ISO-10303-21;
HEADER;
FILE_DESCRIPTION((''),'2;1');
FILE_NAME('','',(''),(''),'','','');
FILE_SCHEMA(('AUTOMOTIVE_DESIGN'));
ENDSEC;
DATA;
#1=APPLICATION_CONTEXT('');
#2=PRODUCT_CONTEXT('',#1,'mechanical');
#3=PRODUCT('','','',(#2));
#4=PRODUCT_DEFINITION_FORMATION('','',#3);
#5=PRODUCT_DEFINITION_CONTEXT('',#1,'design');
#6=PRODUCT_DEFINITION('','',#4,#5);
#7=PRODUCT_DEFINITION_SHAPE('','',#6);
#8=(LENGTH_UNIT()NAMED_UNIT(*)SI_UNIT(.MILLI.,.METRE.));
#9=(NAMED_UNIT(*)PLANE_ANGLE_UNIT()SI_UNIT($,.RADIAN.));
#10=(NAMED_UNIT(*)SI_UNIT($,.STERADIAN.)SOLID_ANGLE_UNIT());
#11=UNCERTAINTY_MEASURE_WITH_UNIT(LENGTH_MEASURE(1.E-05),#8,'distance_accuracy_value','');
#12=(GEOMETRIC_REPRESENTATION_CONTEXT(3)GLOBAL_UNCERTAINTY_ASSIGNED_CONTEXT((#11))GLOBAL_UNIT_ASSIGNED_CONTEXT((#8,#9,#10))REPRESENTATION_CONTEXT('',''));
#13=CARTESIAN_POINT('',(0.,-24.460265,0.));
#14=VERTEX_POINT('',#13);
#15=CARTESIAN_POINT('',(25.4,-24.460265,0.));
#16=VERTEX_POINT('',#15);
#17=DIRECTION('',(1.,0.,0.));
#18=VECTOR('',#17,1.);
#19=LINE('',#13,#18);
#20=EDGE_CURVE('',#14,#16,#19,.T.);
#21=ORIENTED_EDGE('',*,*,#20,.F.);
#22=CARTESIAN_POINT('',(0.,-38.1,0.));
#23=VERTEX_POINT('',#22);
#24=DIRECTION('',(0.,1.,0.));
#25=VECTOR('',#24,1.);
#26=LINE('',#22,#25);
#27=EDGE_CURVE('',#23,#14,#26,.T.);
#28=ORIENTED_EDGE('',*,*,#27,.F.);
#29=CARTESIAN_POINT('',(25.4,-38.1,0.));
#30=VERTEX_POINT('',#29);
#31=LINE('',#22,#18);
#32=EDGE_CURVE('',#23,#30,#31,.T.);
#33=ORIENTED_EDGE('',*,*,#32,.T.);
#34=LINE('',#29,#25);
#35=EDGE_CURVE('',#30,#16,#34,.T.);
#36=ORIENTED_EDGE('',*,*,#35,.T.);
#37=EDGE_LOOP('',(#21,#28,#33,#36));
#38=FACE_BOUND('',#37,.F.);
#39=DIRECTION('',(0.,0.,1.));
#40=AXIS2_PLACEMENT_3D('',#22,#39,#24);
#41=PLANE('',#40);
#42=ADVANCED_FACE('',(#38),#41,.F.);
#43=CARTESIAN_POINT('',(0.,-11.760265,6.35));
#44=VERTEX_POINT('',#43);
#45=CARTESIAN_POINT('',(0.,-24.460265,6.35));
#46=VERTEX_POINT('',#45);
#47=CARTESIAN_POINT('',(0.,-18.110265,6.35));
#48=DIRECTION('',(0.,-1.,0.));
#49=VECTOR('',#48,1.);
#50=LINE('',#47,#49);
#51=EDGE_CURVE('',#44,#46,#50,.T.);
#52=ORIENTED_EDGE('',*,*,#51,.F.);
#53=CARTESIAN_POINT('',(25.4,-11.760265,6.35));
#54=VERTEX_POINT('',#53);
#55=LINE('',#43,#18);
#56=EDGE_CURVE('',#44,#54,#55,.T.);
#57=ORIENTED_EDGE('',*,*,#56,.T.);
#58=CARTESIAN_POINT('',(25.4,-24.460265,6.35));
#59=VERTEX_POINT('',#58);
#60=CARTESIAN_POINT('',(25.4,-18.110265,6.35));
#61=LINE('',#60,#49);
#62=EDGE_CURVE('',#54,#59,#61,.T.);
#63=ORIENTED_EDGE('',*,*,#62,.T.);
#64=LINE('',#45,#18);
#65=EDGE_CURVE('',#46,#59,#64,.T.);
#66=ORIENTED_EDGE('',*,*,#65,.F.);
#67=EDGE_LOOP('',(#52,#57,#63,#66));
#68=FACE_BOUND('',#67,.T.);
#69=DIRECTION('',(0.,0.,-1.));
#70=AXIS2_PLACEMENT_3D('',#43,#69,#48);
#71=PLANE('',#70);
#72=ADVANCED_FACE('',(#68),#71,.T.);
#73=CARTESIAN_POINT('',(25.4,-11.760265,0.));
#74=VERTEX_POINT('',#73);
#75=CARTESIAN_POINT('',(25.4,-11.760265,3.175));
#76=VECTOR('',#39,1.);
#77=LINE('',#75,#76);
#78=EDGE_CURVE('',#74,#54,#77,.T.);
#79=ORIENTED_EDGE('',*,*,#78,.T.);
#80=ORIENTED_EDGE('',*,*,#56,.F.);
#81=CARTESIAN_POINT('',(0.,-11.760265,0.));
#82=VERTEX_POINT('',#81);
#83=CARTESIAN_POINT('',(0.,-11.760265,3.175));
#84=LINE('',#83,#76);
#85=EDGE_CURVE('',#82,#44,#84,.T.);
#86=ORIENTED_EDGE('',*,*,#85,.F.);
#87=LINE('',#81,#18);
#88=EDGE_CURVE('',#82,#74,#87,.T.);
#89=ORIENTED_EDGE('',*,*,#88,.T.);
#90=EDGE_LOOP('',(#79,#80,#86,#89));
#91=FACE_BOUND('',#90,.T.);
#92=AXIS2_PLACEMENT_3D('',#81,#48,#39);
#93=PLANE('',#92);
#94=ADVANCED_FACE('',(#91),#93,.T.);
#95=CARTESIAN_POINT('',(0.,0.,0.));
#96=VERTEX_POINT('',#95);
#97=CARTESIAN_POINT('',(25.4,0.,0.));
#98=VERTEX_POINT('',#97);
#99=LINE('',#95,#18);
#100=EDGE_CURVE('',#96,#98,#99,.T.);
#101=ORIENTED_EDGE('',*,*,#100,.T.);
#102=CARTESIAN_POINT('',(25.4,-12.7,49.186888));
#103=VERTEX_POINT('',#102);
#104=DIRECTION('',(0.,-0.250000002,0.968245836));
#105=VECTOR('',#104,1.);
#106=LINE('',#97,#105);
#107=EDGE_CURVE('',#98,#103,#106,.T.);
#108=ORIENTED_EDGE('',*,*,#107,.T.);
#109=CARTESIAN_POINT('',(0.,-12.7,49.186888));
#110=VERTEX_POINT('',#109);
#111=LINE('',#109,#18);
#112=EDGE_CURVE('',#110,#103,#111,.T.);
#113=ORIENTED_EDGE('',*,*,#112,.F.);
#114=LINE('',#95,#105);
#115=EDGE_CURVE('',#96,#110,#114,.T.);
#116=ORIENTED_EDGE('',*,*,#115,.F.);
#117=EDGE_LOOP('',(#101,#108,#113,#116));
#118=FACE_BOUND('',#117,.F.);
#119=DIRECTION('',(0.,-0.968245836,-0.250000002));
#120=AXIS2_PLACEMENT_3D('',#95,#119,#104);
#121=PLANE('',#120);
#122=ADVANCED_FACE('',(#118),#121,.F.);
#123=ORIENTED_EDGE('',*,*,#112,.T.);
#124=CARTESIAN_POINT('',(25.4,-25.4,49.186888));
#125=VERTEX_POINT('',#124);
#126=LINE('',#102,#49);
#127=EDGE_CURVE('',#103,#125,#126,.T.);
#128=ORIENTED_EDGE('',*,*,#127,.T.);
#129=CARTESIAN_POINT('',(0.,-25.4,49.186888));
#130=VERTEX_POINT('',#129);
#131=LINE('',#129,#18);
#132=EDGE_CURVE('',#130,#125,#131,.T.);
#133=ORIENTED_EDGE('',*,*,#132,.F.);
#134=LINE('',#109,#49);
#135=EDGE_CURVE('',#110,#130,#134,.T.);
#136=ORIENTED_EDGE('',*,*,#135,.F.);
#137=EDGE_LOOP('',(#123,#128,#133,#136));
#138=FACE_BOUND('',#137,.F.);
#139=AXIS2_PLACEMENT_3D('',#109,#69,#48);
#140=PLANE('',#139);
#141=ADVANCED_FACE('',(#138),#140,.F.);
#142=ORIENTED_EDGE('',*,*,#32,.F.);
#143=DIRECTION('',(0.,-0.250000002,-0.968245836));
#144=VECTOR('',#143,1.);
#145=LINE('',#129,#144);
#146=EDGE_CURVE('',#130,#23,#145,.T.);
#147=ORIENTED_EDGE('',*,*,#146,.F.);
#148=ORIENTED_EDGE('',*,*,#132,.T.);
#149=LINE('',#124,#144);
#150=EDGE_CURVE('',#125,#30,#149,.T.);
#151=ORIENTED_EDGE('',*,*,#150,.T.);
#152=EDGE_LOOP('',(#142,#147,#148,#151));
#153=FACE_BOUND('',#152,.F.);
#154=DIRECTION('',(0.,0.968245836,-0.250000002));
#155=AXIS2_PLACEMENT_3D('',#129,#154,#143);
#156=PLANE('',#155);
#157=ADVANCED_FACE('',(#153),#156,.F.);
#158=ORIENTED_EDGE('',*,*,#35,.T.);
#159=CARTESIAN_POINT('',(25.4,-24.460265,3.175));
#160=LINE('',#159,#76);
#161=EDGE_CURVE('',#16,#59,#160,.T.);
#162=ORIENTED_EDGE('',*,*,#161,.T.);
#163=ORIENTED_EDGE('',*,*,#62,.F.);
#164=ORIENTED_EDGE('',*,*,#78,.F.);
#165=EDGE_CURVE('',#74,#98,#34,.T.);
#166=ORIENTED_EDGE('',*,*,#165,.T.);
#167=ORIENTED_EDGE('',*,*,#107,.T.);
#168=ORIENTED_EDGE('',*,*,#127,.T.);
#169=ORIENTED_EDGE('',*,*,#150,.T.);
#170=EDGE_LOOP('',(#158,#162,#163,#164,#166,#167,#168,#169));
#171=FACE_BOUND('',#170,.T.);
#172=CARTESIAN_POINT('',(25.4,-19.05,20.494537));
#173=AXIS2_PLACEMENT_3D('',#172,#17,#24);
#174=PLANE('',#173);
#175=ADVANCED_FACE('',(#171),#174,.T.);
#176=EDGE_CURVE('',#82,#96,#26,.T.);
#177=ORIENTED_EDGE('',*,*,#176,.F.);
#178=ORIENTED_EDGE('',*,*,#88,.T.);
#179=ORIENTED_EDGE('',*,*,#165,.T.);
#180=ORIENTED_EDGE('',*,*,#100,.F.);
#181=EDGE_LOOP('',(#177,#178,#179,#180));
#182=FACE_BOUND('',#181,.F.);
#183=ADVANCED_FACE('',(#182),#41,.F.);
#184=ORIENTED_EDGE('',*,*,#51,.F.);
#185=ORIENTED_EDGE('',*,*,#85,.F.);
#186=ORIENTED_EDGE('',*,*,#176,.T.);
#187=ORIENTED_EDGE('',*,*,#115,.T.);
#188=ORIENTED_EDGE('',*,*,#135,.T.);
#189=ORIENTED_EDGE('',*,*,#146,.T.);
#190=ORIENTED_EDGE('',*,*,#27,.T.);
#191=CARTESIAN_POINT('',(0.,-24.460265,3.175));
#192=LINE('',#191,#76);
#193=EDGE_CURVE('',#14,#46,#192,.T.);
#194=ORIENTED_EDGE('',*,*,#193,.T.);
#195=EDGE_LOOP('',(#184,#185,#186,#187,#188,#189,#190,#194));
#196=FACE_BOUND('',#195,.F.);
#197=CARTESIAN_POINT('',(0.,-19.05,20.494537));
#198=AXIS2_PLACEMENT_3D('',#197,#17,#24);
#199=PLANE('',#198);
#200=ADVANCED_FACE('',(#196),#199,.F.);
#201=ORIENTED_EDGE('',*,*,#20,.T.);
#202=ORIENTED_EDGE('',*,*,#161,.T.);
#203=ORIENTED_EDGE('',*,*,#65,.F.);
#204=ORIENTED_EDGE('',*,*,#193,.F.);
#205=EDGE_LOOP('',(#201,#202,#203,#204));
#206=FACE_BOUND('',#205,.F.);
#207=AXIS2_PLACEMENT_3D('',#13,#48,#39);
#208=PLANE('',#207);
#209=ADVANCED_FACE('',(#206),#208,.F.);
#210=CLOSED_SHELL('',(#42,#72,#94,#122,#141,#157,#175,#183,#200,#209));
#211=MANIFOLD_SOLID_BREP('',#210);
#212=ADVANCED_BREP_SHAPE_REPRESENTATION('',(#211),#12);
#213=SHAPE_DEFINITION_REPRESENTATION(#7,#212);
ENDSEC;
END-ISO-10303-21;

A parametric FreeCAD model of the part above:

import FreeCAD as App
import Part
import Sketcher
from FreeCAD import Vector
Q = App.Units.Quantity


def add_polygon(sketch, points):
    """Adds a closed chain of lines whose ends are joined by coincident constraints."""
    first, n = sketch.GeometryCount, len(points)
    for a, b in zip(points, points[1:] + points[:1]):
        sketch.addGeometry(Part.LineSegment(App.Vector(*a, 0), App.Vector(*b, 0)), False)
    for i in range(n):
        sketch.addConstraint(Sketcher.Constraint("Coincident", first + i, 2, first + (i + 1) % n, 1))

doc = App.newDocument("Part")
body = doc.addObject("PartDesign::Body", "Body")

sketch1 = body.newObject("Sketcher::SketchObject", "Sketch")
sketch1.AttachmentSupport = (doc.getObject("YZ_Plane"), [""])
sketch1.MapMode = "FlatFace"
add_polygon(sketch1, [(-38, 0), (0, 0), (-13, 49), (-25, 49)])
sketch1.addConstraint([
    Sketcher.Constraint("Horizontal", 0),
    Sketcher.Constraint("Horizontal", 2),
    Sketcher.Constraint("Coincident", 0, 2, -1, 1),
    Sketcher.Constraint("Equal", 1, 3),
    Sketcher.Constraint("Distance", 1, Q("2 in")),
    Sketcher.Constraint("DistanceX", 0, 1, 0, 2, Q("1.5 in")),
    Sketcher.Constraint("DistanceX", 2, 2, 2, 1, Q("0.5 in")),
])
pad1 = body.newObject("PartDesign::Pad", "Pad")
pad1.Profile = sketch1
pad1.Length = Q("1 in")

sketch2 = body.newObject("Sketcher::SketchObject", "Sketch001")
sketch2.AttachmentSupport = (doc.getObject("YZ_Plane"), [""])
sketch2.MapMode = "FlatFace"
add_polygon(sketch2, [(-12, 6), (-12, 0), (-24, 0), (-24, 6)])
sketch2.addConstraint([
    Sketcher.Constraint("Vertical", 0),
    Sketcher.Constraint("Horizontal", 1),
    Sketcher.Constraint("Vertical", 2),
    Sketcher.Constraint("Horizontal", 3),
    Sketcher.Constraint("PointOnObject", 0, 2, -1),
    Sketcher.Constraint("DistanceX", 1, 2, 1, 1, Q("0.5 in")),
    Sketcher.Constraint("DistanceY", 0, 2, 0, 1, Q("0.25 in")),
    Sketcher.Constraint("DistanceX", 0, 2, -1, 1, 11.760265),
])
pocket1 = body.newObject("PartDesign::Pocket", "Pocket")
pocket1.Profile = sketch2
pocket1.Length = Q("1 in")
pocket1.Reversed = True

doc.recompute()
